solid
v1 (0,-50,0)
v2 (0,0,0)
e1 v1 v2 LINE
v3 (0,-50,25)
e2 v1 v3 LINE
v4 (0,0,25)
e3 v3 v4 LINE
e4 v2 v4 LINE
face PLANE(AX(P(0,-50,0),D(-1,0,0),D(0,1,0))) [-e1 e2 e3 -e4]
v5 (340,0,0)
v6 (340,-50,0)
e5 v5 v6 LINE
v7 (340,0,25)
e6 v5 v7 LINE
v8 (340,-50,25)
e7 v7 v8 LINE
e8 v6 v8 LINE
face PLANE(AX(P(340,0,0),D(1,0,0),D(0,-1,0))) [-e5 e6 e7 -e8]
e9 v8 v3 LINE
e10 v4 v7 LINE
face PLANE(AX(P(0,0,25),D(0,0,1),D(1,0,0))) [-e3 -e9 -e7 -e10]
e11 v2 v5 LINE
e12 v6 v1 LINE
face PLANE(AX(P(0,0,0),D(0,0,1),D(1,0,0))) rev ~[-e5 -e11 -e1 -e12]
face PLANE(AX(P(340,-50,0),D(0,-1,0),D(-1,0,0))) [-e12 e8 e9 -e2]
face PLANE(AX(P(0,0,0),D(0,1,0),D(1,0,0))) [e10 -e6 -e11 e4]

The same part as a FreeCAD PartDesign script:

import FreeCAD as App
import Part
import Sketcher
from FreeCAD import Vector

doc = App.newDocument("Part")
body = doc.addObject("PartDesign::Body", "Body")

# Sketch on XY plane
sketch1 = body.newObject("Sketcher::SketchObject", "Sketch")
sketch1.AttachmentSupport = (doc.getObject("XY_Plane"), [""])
sketch1.MapMode = "FlatFace"
sketch1.addGeometry([
    Part.LineSegment(Vector(340, 0, 0), Vector(0, 0, 0)),
    Part.LineSegment(Vector(0, 0, 0), Vector(0, -50, 0)),
    Part.LineSegment(Vector(0, -50, 0), Vector(340, -50, 0)),
    Part.LineSegment(Vector(340, -50, 0), Vector(340, 0, 0)),
], False)
sketch1.addConstraint([
    Sketcher.Constraint("Coincident", 0, 2, 1, 1),
    Sketcher.Constraint("Coincident", 1, 2, 2, 1),
    Sketcher.Constraint("Coincident", 2, 2, 3, 1),
    Sketcher.Constraint("Coincident", 3, 2, 0, 1),
    Sketcher.Constraint("Horizontal", 0),
    Sketcher.Constraint("Vertical", 1),
    Sketcher.Constraint("Horizontal", 2),
    Sketcher.Constraint("Vertical", 3),
    Sketcher.Constraint("Coincident", 0, 2, -1, 1),
    Sketcher.Constraint("DistanceX", 0, 2, 0, 1, 340.0),
    Sketcher.Constraint("DistanceY", 1, 2, 1, 1, 50.0),
])
pad1 = body.newObject("PartDesign::Pad", "Pad")
pad1.Profile = sketch1
pad1.Length = 25

doc.recompute()
